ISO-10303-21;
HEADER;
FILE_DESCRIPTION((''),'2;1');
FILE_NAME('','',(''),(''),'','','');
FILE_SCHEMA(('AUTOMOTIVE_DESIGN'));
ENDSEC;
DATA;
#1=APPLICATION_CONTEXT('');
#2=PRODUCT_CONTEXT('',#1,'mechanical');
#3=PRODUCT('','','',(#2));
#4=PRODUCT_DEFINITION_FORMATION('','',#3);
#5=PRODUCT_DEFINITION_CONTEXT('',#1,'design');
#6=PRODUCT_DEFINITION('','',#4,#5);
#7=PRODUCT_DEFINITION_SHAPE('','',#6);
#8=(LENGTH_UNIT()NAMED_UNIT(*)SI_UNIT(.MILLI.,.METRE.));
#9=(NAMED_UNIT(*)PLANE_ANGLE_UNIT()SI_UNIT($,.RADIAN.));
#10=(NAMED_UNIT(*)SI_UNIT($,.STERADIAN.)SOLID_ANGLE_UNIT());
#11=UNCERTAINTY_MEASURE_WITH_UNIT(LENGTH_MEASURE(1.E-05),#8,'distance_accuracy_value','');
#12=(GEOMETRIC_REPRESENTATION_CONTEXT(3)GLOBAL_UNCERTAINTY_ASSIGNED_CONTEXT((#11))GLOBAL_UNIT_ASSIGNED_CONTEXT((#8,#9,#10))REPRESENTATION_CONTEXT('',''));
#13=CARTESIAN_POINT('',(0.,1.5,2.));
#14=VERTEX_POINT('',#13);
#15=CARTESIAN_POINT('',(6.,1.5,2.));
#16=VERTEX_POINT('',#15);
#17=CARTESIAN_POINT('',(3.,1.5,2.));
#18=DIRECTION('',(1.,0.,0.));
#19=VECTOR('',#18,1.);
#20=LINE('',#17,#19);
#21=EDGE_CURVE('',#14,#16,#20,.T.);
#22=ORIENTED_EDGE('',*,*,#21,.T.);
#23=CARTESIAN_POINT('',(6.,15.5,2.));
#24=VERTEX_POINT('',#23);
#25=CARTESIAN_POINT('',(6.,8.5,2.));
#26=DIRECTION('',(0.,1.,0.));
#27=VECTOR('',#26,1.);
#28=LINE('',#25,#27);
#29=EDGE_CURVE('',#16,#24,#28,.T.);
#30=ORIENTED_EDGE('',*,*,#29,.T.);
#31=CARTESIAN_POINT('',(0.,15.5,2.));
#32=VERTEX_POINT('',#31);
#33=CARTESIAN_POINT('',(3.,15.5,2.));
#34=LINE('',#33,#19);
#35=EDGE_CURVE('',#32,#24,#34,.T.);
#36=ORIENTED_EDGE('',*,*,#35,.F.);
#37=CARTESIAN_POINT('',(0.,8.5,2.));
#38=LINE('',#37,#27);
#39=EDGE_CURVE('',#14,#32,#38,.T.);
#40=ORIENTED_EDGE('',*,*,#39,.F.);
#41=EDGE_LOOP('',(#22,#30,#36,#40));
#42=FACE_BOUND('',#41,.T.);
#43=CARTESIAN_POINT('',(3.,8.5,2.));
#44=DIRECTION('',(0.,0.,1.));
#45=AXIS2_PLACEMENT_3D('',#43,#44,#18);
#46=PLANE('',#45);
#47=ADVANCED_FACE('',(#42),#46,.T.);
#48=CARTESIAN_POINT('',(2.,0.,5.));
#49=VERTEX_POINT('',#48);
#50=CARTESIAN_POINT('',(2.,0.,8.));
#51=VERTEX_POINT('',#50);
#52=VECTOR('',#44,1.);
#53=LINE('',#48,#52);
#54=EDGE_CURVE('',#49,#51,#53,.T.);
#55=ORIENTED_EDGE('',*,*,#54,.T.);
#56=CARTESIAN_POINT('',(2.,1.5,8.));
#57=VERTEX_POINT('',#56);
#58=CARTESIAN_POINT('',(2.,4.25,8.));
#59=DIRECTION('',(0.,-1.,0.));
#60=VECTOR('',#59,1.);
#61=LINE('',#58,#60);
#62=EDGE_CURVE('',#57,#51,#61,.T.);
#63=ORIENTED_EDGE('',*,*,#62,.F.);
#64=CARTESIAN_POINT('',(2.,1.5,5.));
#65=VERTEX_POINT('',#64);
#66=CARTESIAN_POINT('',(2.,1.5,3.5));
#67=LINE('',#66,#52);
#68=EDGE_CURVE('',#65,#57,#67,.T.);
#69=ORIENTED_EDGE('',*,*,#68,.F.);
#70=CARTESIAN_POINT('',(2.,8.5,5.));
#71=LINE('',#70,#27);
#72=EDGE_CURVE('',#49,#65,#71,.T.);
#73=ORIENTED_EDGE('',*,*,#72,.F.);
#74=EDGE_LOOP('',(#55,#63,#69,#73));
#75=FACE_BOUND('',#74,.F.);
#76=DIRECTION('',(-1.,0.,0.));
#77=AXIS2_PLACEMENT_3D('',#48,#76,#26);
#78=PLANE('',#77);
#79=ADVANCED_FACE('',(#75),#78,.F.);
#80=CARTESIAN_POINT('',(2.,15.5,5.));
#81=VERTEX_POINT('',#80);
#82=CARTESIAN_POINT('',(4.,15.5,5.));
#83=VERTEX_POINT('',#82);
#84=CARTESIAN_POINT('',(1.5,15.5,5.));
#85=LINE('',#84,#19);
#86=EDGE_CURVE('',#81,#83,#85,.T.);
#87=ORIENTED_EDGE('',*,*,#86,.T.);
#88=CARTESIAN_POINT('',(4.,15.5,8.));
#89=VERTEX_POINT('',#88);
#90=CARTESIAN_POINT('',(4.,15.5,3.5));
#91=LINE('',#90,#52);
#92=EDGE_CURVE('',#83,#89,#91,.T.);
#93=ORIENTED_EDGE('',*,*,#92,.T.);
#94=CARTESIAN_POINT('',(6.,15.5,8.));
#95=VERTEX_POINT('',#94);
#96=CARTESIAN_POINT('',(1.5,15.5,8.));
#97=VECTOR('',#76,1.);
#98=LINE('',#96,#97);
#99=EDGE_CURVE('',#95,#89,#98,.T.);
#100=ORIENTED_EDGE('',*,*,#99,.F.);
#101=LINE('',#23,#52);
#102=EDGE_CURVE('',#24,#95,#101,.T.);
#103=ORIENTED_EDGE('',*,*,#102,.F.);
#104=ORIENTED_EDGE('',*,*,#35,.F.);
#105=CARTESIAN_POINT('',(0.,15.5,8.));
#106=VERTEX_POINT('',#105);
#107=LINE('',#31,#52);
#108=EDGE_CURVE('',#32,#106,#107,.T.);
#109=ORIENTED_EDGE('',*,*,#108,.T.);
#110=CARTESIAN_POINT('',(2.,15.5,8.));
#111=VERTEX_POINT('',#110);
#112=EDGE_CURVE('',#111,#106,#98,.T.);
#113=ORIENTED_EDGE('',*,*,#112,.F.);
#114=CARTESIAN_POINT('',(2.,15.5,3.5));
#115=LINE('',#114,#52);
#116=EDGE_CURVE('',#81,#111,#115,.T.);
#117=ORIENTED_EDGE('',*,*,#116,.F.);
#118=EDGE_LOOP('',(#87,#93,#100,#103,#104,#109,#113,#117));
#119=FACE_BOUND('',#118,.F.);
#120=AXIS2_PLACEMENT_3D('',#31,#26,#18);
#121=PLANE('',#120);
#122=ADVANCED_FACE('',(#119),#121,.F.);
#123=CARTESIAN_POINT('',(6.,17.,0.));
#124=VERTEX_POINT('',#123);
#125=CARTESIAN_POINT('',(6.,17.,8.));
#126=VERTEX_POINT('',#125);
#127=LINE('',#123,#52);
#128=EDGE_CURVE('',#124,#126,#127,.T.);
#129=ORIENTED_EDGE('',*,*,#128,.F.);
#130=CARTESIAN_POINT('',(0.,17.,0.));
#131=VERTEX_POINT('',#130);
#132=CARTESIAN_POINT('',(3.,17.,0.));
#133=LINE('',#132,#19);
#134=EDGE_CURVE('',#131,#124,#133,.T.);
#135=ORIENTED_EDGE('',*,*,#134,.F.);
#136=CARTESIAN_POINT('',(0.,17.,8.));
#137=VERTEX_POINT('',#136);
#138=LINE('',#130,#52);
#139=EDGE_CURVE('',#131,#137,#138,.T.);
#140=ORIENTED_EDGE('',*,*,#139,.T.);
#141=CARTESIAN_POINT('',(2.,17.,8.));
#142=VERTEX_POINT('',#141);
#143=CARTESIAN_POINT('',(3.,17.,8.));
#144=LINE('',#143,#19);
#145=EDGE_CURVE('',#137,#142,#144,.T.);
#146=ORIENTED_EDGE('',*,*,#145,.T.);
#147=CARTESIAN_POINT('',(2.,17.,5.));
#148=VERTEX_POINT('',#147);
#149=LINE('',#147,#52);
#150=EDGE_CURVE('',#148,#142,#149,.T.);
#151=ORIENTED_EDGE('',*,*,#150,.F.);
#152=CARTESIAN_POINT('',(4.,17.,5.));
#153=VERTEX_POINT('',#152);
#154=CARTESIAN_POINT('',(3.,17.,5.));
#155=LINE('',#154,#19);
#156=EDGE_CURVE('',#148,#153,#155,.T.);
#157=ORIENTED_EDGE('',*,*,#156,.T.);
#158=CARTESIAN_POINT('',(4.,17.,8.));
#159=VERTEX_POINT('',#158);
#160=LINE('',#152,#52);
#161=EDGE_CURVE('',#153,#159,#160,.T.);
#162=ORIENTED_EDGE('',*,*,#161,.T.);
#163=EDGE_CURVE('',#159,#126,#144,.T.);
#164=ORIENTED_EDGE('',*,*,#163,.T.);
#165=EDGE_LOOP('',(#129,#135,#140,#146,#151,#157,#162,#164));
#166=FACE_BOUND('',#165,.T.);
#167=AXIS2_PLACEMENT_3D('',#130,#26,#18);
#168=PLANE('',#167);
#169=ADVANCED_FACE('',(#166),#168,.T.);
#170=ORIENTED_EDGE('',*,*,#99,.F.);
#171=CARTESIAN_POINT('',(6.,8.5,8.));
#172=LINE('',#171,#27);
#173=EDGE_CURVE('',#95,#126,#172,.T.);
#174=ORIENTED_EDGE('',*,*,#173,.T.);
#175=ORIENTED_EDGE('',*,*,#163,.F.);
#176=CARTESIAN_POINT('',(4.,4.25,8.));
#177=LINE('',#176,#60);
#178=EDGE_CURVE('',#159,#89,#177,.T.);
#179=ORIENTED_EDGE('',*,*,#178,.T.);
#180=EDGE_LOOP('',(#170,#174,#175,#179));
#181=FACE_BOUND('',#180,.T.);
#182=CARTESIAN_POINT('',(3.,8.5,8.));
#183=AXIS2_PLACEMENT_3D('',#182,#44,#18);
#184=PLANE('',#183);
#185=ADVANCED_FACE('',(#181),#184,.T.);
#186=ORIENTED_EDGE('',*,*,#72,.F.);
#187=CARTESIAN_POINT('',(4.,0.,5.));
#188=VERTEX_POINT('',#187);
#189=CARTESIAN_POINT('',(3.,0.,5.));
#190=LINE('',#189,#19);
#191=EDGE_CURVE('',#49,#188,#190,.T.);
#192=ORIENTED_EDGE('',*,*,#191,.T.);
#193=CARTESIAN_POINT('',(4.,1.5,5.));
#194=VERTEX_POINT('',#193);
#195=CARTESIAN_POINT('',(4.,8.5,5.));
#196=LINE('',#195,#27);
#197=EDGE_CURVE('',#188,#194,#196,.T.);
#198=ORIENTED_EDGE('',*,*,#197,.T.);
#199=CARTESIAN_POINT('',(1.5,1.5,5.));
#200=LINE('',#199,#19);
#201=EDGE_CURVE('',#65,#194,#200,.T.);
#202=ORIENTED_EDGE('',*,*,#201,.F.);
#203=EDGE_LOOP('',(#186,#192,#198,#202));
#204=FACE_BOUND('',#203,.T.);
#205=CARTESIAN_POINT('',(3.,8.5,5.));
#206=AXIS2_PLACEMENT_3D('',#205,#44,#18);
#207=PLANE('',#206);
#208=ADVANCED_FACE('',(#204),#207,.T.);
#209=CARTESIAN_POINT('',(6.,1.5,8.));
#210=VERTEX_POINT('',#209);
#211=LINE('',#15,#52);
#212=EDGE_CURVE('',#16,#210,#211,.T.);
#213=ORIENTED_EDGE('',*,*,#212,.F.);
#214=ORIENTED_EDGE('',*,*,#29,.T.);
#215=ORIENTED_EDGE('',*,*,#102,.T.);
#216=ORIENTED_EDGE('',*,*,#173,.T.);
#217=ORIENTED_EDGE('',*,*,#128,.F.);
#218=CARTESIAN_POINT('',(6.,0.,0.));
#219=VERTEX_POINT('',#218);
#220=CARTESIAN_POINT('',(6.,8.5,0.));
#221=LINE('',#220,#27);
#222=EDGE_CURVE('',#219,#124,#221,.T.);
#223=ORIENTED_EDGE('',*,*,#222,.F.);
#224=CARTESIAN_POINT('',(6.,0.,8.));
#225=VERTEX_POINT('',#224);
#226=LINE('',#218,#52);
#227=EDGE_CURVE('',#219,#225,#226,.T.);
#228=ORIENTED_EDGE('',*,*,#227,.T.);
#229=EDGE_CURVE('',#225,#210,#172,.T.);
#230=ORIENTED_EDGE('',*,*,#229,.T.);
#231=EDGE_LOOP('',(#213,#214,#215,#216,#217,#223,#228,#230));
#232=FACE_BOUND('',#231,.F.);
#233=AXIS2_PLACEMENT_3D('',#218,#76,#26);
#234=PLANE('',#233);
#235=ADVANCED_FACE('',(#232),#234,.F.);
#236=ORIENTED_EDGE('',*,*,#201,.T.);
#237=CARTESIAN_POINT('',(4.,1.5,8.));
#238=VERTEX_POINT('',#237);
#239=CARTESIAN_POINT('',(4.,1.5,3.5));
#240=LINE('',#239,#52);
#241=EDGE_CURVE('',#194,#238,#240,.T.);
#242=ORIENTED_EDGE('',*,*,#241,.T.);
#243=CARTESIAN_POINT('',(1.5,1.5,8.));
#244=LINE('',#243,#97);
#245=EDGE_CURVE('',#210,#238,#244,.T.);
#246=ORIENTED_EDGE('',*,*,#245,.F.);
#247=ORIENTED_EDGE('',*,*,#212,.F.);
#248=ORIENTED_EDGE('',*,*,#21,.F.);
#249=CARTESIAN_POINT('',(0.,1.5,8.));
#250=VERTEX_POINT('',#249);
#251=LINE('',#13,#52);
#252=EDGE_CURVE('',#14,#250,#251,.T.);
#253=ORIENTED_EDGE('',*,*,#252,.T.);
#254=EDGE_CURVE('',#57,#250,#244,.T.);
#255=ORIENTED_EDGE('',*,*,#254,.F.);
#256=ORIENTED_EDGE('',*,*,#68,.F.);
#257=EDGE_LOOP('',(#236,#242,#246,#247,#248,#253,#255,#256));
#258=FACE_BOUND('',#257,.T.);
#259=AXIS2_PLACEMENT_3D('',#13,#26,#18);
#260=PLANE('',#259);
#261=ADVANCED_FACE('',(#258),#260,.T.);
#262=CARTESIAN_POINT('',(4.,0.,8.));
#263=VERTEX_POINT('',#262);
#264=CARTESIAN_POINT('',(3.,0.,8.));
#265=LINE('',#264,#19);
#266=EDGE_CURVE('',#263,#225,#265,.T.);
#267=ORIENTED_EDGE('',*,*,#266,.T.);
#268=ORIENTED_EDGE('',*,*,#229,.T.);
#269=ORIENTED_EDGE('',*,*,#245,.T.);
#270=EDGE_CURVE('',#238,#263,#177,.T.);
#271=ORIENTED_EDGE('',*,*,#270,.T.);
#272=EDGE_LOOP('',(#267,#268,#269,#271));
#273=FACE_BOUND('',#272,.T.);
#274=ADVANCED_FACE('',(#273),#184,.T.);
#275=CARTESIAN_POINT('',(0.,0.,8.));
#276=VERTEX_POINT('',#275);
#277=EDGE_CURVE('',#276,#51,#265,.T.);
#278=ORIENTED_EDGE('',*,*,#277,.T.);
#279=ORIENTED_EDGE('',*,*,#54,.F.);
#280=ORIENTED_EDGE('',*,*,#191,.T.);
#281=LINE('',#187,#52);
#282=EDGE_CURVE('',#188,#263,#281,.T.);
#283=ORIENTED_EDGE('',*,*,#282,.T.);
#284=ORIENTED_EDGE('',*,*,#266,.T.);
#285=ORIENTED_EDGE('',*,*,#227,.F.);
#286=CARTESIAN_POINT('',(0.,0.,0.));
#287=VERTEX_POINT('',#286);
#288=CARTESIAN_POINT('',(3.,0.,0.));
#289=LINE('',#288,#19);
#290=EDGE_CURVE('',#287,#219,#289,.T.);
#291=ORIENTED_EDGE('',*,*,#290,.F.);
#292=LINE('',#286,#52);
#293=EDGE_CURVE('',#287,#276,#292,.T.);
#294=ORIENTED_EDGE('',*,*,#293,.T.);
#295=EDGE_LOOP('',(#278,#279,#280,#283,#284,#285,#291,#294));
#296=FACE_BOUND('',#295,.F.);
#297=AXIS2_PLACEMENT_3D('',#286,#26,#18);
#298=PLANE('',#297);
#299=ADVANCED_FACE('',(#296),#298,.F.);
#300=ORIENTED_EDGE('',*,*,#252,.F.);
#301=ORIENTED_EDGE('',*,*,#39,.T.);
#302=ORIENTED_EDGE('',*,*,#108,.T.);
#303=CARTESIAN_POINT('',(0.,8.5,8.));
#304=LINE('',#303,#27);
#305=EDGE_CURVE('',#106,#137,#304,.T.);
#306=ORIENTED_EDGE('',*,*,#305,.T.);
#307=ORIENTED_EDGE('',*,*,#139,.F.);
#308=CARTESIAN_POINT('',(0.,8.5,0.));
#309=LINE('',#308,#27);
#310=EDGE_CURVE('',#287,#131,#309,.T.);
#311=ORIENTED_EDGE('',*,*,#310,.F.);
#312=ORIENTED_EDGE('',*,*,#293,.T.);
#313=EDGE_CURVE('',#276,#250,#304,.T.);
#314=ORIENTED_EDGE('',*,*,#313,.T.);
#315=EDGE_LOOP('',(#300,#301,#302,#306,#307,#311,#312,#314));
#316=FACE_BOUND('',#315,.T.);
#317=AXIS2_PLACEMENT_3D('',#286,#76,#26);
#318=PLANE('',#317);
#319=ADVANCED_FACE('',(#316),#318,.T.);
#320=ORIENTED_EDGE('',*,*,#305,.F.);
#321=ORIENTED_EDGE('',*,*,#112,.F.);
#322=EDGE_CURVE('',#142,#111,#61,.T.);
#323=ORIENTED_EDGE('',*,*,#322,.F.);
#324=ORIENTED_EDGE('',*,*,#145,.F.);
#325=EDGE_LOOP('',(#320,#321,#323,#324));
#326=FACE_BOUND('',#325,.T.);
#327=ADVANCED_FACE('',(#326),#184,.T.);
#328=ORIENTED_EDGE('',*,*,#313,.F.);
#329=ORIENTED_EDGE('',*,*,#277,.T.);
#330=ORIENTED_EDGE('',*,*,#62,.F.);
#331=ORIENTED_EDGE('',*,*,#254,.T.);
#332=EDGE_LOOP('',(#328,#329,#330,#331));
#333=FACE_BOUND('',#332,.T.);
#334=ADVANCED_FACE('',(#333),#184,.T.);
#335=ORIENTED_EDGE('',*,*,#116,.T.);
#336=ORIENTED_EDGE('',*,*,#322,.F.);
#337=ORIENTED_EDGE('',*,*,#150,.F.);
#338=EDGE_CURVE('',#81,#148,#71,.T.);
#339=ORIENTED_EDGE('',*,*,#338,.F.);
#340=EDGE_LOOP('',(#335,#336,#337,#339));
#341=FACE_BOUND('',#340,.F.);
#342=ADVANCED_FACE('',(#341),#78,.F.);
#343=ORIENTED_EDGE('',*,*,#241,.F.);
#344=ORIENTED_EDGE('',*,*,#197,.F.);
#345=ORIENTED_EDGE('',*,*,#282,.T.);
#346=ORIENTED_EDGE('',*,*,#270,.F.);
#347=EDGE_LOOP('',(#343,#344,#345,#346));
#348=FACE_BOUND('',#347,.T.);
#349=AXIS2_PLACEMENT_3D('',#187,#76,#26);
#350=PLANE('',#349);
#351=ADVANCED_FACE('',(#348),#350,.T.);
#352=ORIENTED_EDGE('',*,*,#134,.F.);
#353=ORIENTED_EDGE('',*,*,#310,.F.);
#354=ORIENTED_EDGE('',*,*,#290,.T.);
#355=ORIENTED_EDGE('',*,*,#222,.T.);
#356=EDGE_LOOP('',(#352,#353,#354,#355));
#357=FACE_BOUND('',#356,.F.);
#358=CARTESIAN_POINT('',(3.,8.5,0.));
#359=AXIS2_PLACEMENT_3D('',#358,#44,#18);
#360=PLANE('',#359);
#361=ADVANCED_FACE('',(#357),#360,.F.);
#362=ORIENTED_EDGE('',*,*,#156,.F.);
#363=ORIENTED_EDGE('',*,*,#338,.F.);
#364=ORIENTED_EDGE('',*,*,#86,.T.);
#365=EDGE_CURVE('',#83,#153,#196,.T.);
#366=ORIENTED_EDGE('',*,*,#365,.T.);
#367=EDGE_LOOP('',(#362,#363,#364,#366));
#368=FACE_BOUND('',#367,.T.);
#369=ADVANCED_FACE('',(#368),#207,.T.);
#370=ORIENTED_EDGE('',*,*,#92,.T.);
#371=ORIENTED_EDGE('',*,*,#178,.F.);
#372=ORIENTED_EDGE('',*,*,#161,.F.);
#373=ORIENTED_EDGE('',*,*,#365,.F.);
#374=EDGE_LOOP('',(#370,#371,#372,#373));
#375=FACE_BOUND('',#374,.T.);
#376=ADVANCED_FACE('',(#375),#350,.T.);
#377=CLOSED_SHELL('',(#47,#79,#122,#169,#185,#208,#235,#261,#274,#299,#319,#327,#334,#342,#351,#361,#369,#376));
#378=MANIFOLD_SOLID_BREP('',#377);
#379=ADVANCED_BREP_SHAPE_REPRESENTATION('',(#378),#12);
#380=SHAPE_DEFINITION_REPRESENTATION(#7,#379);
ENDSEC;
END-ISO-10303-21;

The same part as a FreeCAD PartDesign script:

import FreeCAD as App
import Part
import Sketcher

doc = App.newDocument("Part")
body = doc.addObject("PartDesign::Body", "Body")

# Sketch on XY plane
sketch1 = body.newObject("Sketcher::SketchObject", "Sketch")
sketch1.AttachmentSupport = (doc.getObject("XY_Plane"), [""])
sketch1.MapMode = "FlatFace"
sketch1.AttachmentOffset = App.Placement(App.Vector(0, 0, 5), App.Rotation())
sketch1.addGeometry([
    Part.LineSegment(App.Vector(2, 17, 0), App.Vector(2, 0, 0)),
    Part.LineSegment(App.Vector(2, 0, 0), App.Vector(4, 0, 0)),
    Part.LineSegment(App.Vector(4, 0, 0), App.Vector(4, 17, 0)),
    Part.LineSegment(App.Vector(4, 17, 0), App.Vector(2, 17, 0)),
], False)
sketch1.addConstraint([
    Sketcher.Constraint("Coincident", 0, 2, 1, 1),
    Sketcher.Constraint("Coincident", 1, 2, 2, 1),
    Sketcher.Constraint("Coincident", 2, 2, 3, 1),
    Sketcher.Constraint("Coincident", 3, 2, 0, 1),
    Sketcher.Constraint("Vertical", 0),
    Sketcher.Constraint("Horizontal", 1),
    Sketcher.Constraint("Vertical", 2),
    Sketcher.Constraint("Horizontal", 3),
    Sketcher.Constraint("PointOnObject", 0, 2, -1),
    Sketcher.Constraint("DistanceX", 1, 1, 1, 2, 2.0),
    Sketcher.Constraint("DistanceY", 0, 2, 0, 1, 17.0),
    Sketcher.Constraint("DistanceX", -1, 1, 0, 2, 2.0),
])
pad1 = body.newObject("PartDesign::Pad", "Pad")
pad1.Profile = sketch1
pad1.Length = 8
body2 = doc.addObject("PartDesign::Body", "Body001")

# Sketch on XY plane
sketch2 = body2.newObject("Sketcher::SketchObject", "Sketch001")
sketch2.AttachmentSupport = (doc.getObject("XY_Plane001"), [""])
sketch2.MapMode = "FlatFace"
sketch2.AttachmentOffset = App.Placement(App.Vector(0, 0, 2), App.Rotation())
sketch2.addGeometry([
    Part.LineSegment(App.Vector(0, 16, 0), App.Vector(0, 2, 0)),
    Part.LineSegment(App.Vector(0, 2, 0), App.Vector(6, 2, 0)),
    Part.LineSegment(App.Vector(6, 2, 0), App.Vector(6, 16, 0)),
    Part.LineSegment(App.Vector(6, 16, 0), App.Vector(0, 16, 0)),
], False)
sketch2.addConstraint([
    Sketcher.Constraint("Coincident", 0, 2, 1, 1),
    Sketcher.Constraint("Coincident", 1, 2, 2, 1),
    Sketcher.Constraint("Coincident", 2, 2, 3, 1),
    Sketcher.Constraint("Coincident", 3, 2, 0, 1),
    Sketcher.Constraint("Vertical", 0),
    Sketcher.Constraint("Horizontal", 1),
    Sketcher.Constraint("Vertical", 2),
    Sketcher.Constraint("Horizontal", 3),
    Sketcher.Constraint("PointOnObject", 0, 2, -2),
    Sketcher.Constraint("DistanceX", 1, 1, 1, 2, 6.0),
    Sketcher.Constraint("DistanceY", 0, 2, 0, 1, 14.0),
    Sketcher.Constraint("DistanceY", -1, 1, 0, 2, 1.5),
])
pad2 = body2.newObject("PartDesign::Pad", "Pad001")
pad2.Profile = sketch2
pad2.Length = 9
body3 = doc.addObject("PartDesign::Body", "Body002")

# Sketch on XY plane
sketch3 = body3.newObject("Sketcher::SketchObject", "Sketch002")
sketch3.AttachmentSupport = (doc.getObject("XY_Plane002"), [""])
sketch3.MapMode = "FlatFace"
sketch3.addGeometry([
    Part.LineSegment(App.Vector(0, 17, 0), App.Vector(0, 0, 0)),
    Part.LineSegment(App.Vector(0, 0, 0), App.Vector(6, 0, 0)),
    Part.LineSegment(App.Vector(6, 0, 0), App.Vector(6, 17, 0)),
    Part.LineSegment(App.Vector(6, 17, 0), App.Vector(0, 17, 0)),
], False)
sketch3.addConstraint([
    Sketcher.Constraint("Coincident", 0, 2, 1, 1),
    Sketcher.Constraint("Coincident", 1, 2, 2, 1),
    Sketcher.Constraint("Coincident", 2, 2, 3, 1),
    Sketcher.Constraint("Coincident", 3, 2, 0, 1),
    Sketcher.Constraint("Vertical", 0),
    Sketcher.Constraint("Horizontal", 1),
    Sketcher.Constraint("Vertical", 2),
    Sketcher.Constraint("Horizontal", 3),
    Sketcher.Constraint("Coincident", 0, 2, -1, 1),
    Sketcher.Constraint("DistanceX", 1, 1, 1, 2, 6.0),
    Sketcher.Constraint("DistanceY", 0, 2, 0, 1, 17.0),
])
pad3 = body3.newObject("PartDesign::Pad", "Pad002")
pad3.Profile = sketch3
pad3.Length = 8
doc.recompute()

boolean = body3.newObject("PartDesign::Boolean", "Boolean")
boolean.Type = "Cut"
boolean.addObjects([body2])
doc.recompute()

boolean2 = body3.newObject("PartDesign::Boolean", "Boolean001")
boolean2.Type = "Cut"
boolean2.addObjects([body])

doc.recompute()
